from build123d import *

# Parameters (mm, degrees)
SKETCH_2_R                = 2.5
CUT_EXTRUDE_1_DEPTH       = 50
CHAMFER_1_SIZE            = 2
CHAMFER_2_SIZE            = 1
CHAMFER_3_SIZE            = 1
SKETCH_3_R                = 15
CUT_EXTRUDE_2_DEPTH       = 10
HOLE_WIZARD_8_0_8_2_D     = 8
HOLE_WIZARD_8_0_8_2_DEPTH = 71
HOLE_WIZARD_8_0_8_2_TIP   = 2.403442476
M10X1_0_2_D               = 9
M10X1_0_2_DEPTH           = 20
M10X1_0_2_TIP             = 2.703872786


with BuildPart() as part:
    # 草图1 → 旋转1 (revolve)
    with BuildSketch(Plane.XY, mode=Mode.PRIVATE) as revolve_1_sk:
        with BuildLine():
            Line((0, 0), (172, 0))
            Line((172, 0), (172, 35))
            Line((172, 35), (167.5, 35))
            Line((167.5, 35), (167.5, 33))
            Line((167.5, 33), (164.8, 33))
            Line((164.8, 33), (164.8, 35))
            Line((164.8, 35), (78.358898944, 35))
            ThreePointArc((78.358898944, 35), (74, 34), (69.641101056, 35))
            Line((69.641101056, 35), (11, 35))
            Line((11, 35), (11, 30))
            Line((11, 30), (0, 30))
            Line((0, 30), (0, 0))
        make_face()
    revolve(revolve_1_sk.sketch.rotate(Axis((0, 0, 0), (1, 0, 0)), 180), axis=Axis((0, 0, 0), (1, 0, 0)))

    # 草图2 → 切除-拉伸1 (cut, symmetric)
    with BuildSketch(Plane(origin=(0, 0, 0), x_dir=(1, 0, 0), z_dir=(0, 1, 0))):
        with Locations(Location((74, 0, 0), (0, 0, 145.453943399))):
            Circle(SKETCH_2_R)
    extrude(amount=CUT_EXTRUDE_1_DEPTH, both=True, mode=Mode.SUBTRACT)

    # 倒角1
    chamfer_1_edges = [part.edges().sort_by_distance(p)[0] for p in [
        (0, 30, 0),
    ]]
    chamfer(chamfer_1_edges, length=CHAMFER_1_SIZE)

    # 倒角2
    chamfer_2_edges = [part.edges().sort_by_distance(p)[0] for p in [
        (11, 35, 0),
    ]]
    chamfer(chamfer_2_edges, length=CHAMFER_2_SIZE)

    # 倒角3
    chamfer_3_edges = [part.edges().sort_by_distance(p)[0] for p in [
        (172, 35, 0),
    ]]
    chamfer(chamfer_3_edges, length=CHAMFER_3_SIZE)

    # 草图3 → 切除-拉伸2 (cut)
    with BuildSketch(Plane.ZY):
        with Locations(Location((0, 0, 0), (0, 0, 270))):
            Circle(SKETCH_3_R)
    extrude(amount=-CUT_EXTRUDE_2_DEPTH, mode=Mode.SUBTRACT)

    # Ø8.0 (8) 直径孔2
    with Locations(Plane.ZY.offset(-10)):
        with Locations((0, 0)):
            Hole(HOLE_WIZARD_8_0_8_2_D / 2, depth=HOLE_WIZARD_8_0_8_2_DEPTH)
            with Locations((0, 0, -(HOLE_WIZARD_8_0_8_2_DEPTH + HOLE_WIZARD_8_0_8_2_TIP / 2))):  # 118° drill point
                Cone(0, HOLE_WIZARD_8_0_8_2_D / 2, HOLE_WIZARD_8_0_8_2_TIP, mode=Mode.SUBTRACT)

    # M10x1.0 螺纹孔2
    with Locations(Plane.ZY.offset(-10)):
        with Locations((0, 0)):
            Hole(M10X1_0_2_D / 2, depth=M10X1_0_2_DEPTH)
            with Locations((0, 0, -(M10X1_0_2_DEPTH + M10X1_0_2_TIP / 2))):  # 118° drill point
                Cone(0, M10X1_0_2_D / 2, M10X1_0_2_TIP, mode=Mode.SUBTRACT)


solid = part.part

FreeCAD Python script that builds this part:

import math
import FreeCAD as App
import Part
import Sketcher

V = App.Vector


def edges_at(feature, points):
    """Names of the edges that pass closest to the given points."""
    edges = feature.Shape.Edges
    near = lambda p: min(range(len(edges)), key=lambda i: edges[i].distToShape(Part.Vertex(*p))[0])
    return sorted({f"Edge{near(p) + 1}" for p in points})

doc = App.newDocument("Part")
body = doc.addObject("PartDesign::Body", "Body")

# Sketch on XY plane
sketch1 = doc.addObject("Sketcher::SketchObject", "Sketch")
body.addObject(sketch1)
sketch1.AttachmentSupport = (doc.XY_Plane, [""])
sketch1.MapMode = "FlatFace"
sketch1.addGeometry([
    Part.LineSegment(V(0, 0, 0), V(172, 0, 0)),  # 0
    Part.LineSegment(V(172, 0, 0), V(172, 35, 0)),  # 1
    Part.LineSegment(V(172, 35, 0), V(167.5, 35, 0)),  # 2
    Part.LineSegment(V(167.5, 35, 0), V(167.5, 33, 0)),  # 3
    Part.LineSegment(V(167.5, 33, 0), V(164.8, 33, 0)),  # 4
    Part.LineSegment(V(164.8, 33, 0), V(164.8, 35, 0)),  # 5
    Part.LineSegment(V(164.8, 35, 0), V(78.358899, 35, 0)),  # 6
    Part.ArcOfCircle(Part.Circle(V(74, 44, 0), V(0, 0, 1), 10), math.radians(-115.841933), math.radians(-64.158067)),  # 7
    Part.LineSegment(V(69.641101, 35, 0), V(11, 35, 0)),  # 8
    Part.LineSegment(V(11, 35, 0), V(11, 30, 0)),  # 9
    Part.LineSegment(V(11, 30, 0), V(0, 30, 0)),  # 10
    Part.LineSegment(V(0, 30, 0), V(0, 0, 0)),  # 11
], False)
sketch1.addConstraint([
    Sketcher.Constraint("Coincident", 0, 2, 1, 1),
    Sketcher.Constraint("Coincident", 1, 2, 2, 1),
    Sketcher.Constraint("Coincident", 2, 2, 3, 1),
    Sketcher.Constraint("Coincident", 3, 2, 4, 1),
    Sketcher.Constraint("Coincident", 4, 2, 5, 1),
    Sketcher.Constraint("Coincident", 5, 2, 6, 1),
    Sketcher.Constraint("Coincident", 6, 2, 7, 2),
    Sketcher.Constraint("Coincident", 7, 1, 8, 1),
    Sketcher.Constraint("Coincident", 8, 2, 9, 1),
    Sketcher.Constraint("Coincident", 9, 2, 10, 1),
    Sketcher.Constraint("Coincident", 10, 2, 11, 1),
    Sketcher.Constraint("Coincident", 11, 2, 0, 1),
    Sketcher.Constraint("Horizontal", 0),
    Sketcher.Constraint("Vertical", 1),
    Sketcher.Constraint("Horizontal", 2),
    Sketcher.Constraint("Vertical", 3),
    Sketcher.Constraint("Horizontal", 4),
    Sketcher.Constraint("Vertical", 5),
    Sketcher.Constraint("Horizontal", 6),
    Sketcher.Constraint("Horizontal", 8),
    Sketcher.Constraint("Vertical", 9),
    Sketcher.Constraint("Horizontal", 10),
    Sketcher.Constraint("Vertical", 11),
    Sketcher.Constraint("Coincident", 11, 2, -1, 1),
    Sketcher.Constraint("Horizontal", 2, 2, 5, 2),
    Sketcher.Constraint("Horizontal", 6, 2, 7, 1),
    Sketcher.Constraint("Radius", 7, 10.0),
    Sketcher.Constraint("DistanceX", 0, 1, 0, 2, 172.0),
    Sketcher.Constraint("DistanceX", 10, 2, 10, 1, 11.0),
    Sketcher.Constraint("DistanceY", 1, 1, 1, 2, 35.0),
    Sketcher.Constraint("DistanceY", 3, 2, 3, 1, 2.0),
    Sketcher.Constraint("DistanceY", 9, 2, 9, 1, 5.0),
    Sketcher.Constraint("DistanceX", 2, 2, 2, 1, 4.5),
    Sketcher.Constraint("DistanceX", 4, 2, 4, 1, 2.7),
    Sketcher.Constraint("DistanceX", -1, 1, 7, 3, 74.0),
    Sketcher.Constraint("DistanceY", -1, 1, 7, 3, 44.0),
])
revolution = doc.addObject("PartDesign::Revolution", "Revolution")
body.addObject(revolution)
revolution.Profile = sketch1
revolution.ReferenceAxis = (sketch1, ["H_Axis"])
revolution.Angle = 360

# Sketch on XZ plane
sketch2 = doc.addObject("Sketcher::SketchObject", "Sketch001")
body.addObject(sketch2)
sketch2.AttachmentSupport = (doc.XZ_Plane, [""])
sketch2.MapMode = "FlatFace"
sketch2.addGeometry(Part.Circle(V(74, 0, 0), V(0, 0, 1), 2.5), False)
sketch2.addConstraint([
    Sketcher.Constraint("PointOnObject", 0, 3, -1),
    Sketcher.Constraint("Diameter", 0, 5.0),
    Sketcher.Constraint("DistanceX", -1, 1, 0, 3, 74.0),
])
pocket1 = doc.addObject("PartDesign::Pocket", "Pocket")
body.addObject(pocket1)
pocket1.Profile = sketch2
pocket1.Length = 100
pocket1.Midplane = True
doc.recompute()

chamfer = doc.addObject("PartDesign::Chamfer", "Chamfer")
body.addObject(chamfer)
chamfer.Base = (pocket1, edges_at(pocket1, [(0, 30, 0)]))
chamfer.Size = 2
doc.recompute()

chamfer2 = doc.addObject("PartDesign::Chamfer", "Chamfer001")
body.addObject(chamfer2)
chamfer2.Base = (chamfer, edges_at(chamfer, [(11, 35, 0)]))
chamfer2.Size = 1
doc.recompute()

chamfer3 = doc.addObject("PartDesign::Chamfer", "Chamfer002")
body.addObject(chamfer3)
chamfer3.Base = (chamfer2, edges_at(chamfer2, [(172, 35, 0)]))
chamfer3.Size = 1

# Sketch on YZ plane
sketch3 = doc.addObject("Sketcher::SketchObject", "Sketch002")
body.addObject(sketch3)
sketch3.AttachmentSupport = (doc.YZ_Plane, [""])
sketch3.MapMode = "FlatFace"
sketch3.addGeometry(Part.Circle(V(0, 0, 0), V(0, 0, 1), 15), False)
sketch3.addConstraint([
    Sketcher.Constraint("Coincident", 0, 3, -1, 1),
    Sketcher.Constraint("Diameter", 0, 30.0),
])
pocket2 = doc.addObject("PartDesign::Pocket", "Pocket001")
body.addObject(pocket2)
pocket2.Profile = sketch3
pocket2.Length = 10
pocket2.Reversed = True

# Sketch on YZ plane
sketch4 = doc.addObject("Sketcher::SketchObject", "Sketch003")
body.addObject(sketch4)
sketch4.AttachmentSupport = (doc.YZ_Plane, [""])
sketch4.MapMode = "FlatFace"
sketch4.AttachmentOffset = App.Placement(V(0, 0, 10), App.Rotation())
sketch4.addGeometry(Part.Circle(V(0, 0, 0), V(0, 0, 1), 4), False)
sketch4.addConstraint([
    Sketcher.Constraint("Coincident", 0, 3, -1, 1),
    Sketcher.Constraint("Diameter", 0, 8.0),
])
doc.recompute()
hole = doc.addObject("PartDesign::Hole", "Hole")
body.addObject(hole)
hole.Profile = sketch4
hole.ThreadType = "None"
hole.Diameter = 8
hole.DepthType = "Dimension"
hole.Depth = 71
hole.DrillPoint = "Angled"
hole.DrillPointAngle = 118
hole.Reversed = True

# Sketch on YZ plane
sketch5 = doc.addObject("Sketcher::SketchObject", "Sketch004")
body.addObject(sketch5)
sketch5.AttachmentSupport = (doc.YZ_Plane, [""])
sketch5.MapMode = "FlatFace"
sketch5.AttachmentOffset = App.Placement(V(0, 0, 10), App.Rotation())
sketch5.addGeometry(Part.Circle(V(0, 0, 0), V(0, 0, 1), 4.5), False)
sketch5.addConstraint([
    Sketcher.Constraint("Coincident", 0, 3, -1, 1),
    Sketcher.Constraint("Diameter", 0, 9.0),
])
doc.recompute()
hole2 = doc.addObject("PartDesign::Hole", "Hole001")
body.addObject(hole2)
hole2.Profile = sketch5
hole2.ThreadType = "None"
hole2.Diameter = 9
hole2.DepthType = "Dimension"
hole2.Depth = 20
hole2.DrillPoint = "Angled"
hole2.DrillPointAngle = 118
hole2.Reversed = True

doc.recompute()
